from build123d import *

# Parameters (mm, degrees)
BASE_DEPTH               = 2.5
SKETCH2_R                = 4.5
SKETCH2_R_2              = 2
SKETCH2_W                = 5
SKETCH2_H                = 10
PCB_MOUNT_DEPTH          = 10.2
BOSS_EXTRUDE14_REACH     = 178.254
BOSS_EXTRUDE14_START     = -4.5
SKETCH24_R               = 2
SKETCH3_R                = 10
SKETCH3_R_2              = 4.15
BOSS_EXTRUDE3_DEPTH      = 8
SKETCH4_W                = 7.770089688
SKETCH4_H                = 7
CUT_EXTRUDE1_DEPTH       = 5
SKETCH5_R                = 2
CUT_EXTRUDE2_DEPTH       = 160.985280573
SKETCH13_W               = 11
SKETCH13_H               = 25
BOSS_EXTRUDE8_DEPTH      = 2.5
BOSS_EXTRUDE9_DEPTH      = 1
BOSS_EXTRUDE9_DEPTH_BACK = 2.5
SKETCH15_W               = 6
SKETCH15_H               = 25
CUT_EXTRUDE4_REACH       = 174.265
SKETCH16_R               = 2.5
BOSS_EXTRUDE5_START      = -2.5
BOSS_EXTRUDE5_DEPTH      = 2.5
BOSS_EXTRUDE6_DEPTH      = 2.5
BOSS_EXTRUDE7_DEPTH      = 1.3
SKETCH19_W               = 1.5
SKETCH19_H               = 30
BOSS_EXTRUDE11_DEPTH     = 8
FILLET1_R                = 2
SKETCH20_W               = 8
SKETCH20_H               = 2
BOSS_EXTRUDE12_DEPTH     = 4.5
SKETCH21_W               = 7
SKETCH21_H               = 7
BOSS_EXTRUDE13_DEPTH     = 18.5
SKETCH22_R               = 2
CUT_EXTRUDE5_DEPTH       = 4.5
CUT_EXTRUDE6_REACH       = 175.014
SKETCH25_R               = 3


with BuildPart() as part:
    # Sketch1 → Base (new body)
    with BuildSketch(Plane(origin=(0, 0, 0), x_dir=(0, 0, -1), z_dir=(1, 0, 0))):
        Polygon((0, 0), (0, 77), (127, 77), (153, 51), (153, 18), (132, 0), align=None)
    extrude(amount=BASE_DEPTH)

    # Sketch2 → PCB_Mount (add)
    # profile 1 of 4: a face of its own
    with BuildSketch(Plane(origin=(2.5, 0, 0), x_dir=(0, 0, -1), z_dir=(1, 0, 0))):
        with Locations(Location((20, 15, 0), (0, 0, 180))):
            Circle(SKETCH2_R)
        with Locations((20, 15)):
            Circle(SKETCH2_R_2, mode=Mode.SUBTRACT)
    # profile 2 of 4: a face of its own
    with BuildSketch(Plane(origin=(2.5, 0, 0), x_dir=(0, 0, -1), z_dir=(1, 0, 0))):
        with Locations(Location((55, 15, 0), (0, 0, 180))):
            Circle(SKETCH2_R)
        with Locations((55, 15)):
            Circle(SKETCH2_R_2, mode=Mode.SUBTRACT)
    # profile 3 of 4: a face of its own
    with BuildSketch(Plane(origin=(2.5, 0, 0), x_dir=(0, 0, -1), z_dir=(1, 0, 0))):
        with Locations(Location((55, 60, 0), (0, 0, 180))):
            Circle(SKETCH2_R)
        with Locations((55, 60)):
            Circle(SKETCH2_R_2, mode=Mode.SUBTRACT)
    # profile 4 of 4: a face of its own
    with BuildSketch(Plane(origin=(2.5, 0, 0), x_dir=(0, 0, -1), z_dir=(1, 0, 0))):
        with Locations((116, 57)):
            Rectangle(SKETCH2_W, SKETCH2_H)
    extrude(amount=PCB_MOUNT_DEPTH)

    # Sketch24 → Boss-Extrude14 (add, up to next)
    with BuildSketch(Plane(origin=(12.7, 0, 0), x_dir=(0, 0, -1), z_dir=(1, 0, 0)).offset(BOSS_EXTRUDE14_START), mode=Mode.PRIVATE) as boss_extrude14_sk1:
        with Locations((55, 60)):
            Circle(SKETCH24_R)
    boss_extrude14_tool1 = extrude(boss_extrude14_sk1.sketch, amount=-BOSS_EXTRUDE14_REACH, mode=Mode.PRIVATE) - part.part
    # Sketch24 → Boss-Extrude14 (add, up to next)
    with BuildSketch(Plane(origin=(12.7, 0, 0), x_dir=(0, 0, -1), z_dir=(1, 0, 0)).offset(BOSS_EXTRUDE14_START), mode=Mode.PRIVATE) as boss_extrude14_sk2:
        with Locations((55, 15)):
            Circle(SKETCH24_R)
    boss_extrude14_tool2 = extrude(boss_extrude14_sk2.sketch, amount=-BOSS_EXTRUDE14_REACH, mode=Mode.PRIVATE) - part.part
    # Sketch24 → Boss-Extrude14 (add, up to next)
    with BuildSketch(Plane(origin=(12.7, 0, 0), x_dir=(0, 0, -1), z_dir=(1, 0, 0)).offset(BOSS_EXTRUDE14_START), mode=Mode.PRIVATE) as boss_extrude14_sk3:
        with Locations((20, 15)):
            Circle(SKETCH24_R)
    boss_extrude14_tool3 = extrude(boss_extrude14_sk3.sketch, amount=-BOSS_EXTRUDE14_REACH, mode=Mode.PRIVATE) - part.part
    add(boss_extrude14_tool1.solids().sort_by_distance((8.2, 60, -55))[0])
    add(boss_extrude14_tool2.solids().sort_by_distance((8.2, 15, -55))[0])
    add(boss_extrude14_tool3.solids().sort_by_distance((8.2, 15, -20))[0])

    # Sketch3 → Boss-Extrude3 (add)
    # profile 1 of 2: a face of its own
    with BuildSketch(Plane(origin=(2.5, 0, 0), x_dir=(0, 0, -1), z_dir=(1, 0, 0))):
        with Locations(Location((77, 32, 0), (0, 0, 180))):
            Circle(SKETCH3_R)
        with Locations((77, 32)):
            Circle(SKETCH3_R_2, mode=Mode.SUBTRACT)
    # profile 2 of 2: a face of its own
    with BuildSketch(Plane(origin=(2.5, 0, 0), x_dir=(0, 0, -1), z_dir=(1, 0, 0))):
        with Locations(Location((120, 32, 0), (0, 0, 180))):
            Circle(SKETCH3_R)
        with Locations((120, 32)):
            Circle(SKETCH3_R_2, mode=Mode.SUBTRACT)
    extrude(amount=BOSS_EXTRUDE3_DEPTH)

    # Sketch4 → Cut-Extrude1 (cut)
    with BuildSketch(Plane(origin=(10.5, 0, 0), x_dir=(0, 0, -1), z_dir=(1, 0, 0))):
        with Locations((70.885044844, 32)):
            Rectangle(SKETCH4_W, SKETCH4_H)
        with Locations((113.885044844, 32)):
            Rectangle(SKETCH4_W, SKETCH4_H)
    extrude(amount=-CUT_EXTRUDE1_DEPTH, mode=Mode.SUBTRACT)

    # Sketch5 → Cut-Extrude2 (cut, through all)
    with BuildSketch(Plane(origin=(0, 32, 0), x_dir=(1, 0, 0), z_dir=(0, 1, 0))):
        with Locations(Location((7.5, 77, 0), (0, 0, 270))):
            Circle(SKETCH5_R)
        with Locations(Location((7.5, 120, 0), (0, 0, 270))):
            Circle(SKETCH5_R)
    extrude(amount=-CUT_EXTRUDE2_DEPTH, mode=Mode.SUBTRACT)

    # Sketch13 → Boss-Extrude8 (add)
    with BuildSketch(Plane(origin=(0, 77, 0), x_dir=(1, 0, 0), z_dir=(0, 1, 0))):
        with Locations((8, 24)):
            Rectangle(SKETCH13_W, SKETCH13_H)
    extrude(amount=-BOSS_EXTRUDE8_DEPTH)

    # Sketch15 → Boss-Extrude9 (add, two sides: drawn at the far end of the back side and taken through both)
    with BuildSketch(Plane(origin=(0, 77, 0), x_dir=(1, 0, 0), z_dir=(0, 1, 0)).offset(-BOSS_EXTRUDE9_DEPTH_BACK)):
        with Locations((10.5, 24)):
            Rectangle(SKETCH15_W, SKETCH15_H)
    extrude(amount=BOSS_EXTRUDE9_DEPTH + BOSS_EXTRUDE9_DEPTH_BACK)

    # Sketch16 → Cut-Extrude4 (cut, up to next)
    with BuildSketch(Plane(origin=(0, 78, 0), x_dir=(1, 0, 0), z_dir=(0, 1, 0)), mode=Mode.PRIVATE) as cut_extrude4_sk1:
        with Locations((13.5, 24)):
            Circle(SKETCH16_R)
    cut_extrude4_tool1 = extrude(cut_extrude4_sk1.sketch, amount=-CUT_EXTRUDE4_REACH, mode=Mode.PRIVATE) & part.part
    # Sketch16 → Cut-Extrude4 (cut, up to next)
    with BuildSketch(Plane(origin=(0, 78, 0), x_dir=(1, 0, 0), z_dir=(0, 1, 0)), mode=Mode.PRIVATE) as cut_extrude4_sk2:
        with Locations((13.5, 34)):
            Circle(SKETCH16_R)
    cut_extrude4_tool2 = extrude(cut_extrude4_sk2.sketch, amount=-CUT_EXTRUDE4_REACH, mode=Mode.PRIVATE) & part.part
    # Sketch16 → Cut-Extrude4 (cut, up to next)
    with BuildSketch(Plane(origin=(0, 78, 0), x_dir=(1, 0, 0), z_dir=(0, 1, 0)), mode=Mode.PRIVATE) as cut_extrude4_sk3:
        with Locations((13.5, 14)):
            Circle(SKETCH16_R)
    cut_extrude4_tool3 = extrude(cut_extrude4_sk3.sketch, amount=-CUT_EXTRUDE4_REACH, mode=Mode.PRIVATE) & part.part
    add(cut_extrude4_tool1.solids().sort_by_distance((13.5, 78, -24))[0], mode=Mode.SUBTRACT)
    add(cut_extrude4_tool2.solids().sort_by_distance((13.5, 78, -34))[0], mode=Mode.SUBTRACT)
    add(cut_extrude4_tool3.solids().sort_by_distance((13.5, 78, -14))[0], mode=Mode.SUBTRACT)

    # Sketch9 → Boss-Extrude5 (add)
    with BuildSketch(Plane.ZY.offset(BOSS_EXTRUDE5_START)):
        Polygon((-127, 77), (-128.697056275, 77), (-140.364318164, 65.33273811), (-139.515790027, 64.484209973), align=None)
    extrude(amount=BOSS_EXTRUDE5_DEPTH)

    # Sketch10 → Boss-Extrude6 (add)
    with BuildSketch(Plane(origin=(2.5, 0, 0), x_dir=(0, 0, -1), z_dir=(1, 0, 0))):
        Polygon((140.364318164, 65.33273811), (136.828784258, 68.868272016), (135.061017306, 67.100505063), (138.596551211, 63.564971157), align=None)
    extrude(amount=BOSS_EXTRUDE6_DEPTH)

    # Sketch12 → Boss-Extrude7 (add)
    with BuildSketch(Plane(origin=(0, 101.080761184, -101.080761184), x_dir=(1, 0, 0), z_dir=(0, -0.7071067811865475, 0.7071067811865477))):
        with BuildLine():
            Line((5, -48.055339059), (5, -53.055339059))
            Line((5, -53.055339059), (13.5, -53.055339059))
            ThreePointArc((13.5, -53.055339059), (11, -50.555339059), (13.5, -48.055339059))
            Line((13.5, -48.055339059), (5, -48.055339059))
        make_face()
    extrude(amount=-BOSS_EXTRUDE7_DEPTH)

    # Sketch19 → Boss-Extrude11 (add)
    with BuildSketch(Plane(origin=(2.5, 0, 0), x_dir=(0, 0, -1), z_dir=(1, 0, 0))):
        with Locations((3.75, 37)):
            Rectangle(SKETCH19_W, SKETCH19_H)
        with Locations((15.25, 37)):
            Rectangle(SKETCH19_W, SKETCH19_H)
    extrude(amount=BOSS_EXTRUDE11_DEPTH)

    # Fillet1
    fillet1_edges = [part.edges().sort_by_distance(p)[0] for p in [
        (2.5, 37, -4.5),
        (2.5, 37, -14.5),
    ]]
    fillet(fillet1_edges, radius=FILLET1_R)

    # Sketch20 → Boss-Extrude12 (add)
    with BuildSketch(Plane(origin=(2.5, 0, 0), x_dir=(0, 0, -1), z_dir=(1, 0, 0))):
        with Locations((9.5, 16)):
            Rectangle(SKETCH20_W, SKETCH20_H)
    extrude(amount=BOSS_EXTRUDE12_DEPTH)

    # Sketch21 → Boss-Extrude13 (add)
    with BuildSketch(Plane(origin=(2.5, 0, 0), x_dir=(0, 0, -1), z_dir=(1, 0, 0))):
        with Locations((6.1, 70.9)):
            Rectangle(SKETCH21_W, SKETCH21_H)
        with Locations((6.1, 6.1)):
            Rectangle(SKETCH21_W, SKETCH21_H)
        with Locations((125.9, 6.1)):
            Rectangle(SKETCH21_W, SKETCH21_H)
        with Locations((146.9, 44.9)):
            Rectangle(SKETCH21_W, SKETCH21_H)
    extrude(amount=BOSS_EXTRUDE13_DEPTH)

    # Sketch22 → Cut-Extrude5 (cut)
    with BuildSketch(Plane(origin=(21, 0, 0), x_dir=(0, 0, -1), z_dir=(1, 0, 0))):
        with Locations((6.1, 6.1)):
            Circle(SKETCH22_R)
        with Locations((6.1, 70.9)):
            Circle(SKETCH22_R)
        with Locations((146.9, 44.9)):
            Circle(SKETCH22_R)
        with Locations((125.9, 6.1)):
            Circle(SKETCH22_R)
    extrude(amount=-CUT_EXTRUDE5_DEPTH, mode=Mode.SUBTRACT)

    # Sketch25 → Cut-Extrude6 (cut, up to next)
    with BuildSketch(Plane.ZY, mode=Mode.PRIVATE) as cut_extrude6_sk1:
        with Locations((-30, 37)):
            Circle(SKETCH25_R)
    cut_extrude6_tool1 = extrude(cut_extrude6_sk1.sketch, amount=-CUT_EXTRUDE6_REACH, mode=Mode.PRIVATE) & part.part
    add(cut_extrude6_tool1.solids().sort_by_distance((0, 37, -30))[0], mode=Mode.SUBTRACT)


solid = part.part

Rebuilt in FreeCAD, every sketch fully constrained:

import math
import FreeCAD as App
import Part
import Sketcher
from FreeCAD import Vector
Q = App.Units.Quantity


def edges_at(feature, points):
    """Names of the edges that pass closest to the given points."""
    edges = feature.Shape.Edges
    near = lambda p: min(range(len(edges)), key=lambda i: edges[i].distToShape(Part.Vertex(*p))[0])
    return sorted({f"Edge{near(p) + 1}" for p in points})

doc = App.newDocument("Part")
params = doc.addObject("Spreadsheet::Sheet", "Params")
for row, (alias, value) in enumerate([
    ("sketch1_width", "77 mm"),
    ("sketch1_width2", "33 mm"),
    ("sketch1_height", "132 mm"),
    ("sketch1_height2", "127 mm"),
    ("pad1_length", "2.5 mm"),
    ("sketch2_diameter", "9 mm"),
    ("sketch2_diameter2", "4 mm"),
    ("sketch2_width", "10 mm"),
    ("sketch2_height", "5 mm"),
    ("pad2_length", "10.2 mm"),
    ("sketch3_diameter", "4 mm"),
    ("sketch4_diameter", "4 mm"),
    ("sketch5_diameter", "4 mm"),
    ("sketch6_diameter", "20 mm"),
    ("sketch6_diameter2", "8.3 mm"),
    ("pad6_length", "8 mm"),
    ("sketch7_width", "7 mm"),
    ("pocket1_length", "5 mm"),
    ("sketch8_diameter", "4 mm"),
    ("sketch9_width", "11 mm"),
    ("sketch9_height", "25 mm"),
    ("pad7_length", "2.5 mm"),
    ("sketch10_width", "6 mm"),
    ("sketch10_height", "25 mm"),
    ("pad8_length", "1 mm"),
    ("pad8_length2", "2.5 mm"),
    ("sketch11_diameter", "5 mm"),
    ("sketch12_diameter", "5 mm"),
    ("sketch13_diameter", "5 mm"),
    ("sketch14_length", "16.5 mm"),
    ("sketch14_length2", "1.2 mm"),
    ("pad9_length", "2.5 mm"),
    ("sketch15_length", "5 mm"),
    ("sketch15_length2", "2.5 mm"),
    ("pad10_length", "2.5 mm"),
    ("sketch16_radius", "2.5 mm"),
    ("sketch16_width", "8.5 mm"),
    ("pad11_length", "1.3 mm"),
    ("sketch17_width", "30 mm"),
    ("sketch17_height", "1.5 mm"),
    ("pad12_length", "8 mm"),
    ("fillet_radius", "2 mm"),
    ("sketch18_width", "2 mm"),
    ("sketch18_height", "8 mm"),
    ("pad13_length", "4.5 mm"),
    ("sketch19_width", "7 mm"),
    ("pad14_length", "18.5 mm"),
    ("sketch20_diameter", "4 mm"),
    ("pocket6_length", "4.5 mm"),
    ("sketch21_diameter", "6 mm"),
], start=1):
    params.set(f"A{row}", alias)
    params.set(f"B{row}", "=" + value)
    params.setAlias(f"B{row}", alias)

body = doc.addObject("PartDesign::Body", "Body")

# Sketch on YZ plane
sketch1 = body.newObject("Sketcher::SketchObject", "Sketch")
sketch1.AttachmentSupport = (doc.getObject("YZ_Plane"), [""])
sketch1.MapMode = "FlatFace"
sketch1.addGeometry(Part.LineSegment(Vector(77, 0, 0), Vector(0, 0, 0)), False)
sketch1.addGeometry(Part.LineSegment(Vector(0, 0, 0), Vector(0, -132, 0)), False)
sketch1.addGeometry(Part.LineSegment(Vector(0, -132, 0), Vector(18, -153, 0)), False)
sketch1.addGeometry(Part.LineSegment(Vector(18, -153, 0), Vector(51, -153, 0)), False)
sketch1.addGeometry(Part.LineSegment(Vector(51, -153, 0), Vector(77, -127, 0)), False)
sketch1.addGeometry(Part.LineSegment(Vector(77, -127, 0), Vector(77, 0, 0)), False)
sketch1.addConstraint(Sketcher.Constraint("Coincident", 0, 2, 1, 1))
sketch1.addConstraint(Sketcher.Constraint("Coincident", 1, 2, 2, 1))
sketch1.addConstraint(Sketcher.Constraint("Coincident", 2, 2, 3, 1))
sketch1.addConstraint(Sketcher.Constraint("Coincident", 3, 2, 4, 1))
sketch1.addConstraint(Sketcher.Constraint("Coincident", 4, 2, 5, 1))
sketch1.addConstraint(Sketcher.Constraint("Coincident", 5, 2, 0, 1))
sketch1.addConstraint(Sketcher.Constraint("Horizontal", 0))
sketch1.addConstraint(Sketcher.Constraint("Vertical", 1))
sketch1.addConstraint(Sketcher.Constraint("Horizontal", 3))
sketch1.addConstraint(Sketcher.Constraint("Vertical", 5))
sketch1.addConstraint(Sketcher.Constraint("Coincident", 0, 2, -1, 1))
sketch1.addConstraint(Sketcher.Constraint("DistanceX", 0, 2, 0, 1, 77.0))
sketch1.addConstraint(Sketcher.Constraint("DistanceX", 3, 1, 3, 2, 33.0))
sketch1.addConstraint(Sketcher.Constraint("DistanceY", 1, 2, 1, 1, 132.0))
sketch1.addConstraint(Sketcher.Constraint("DistanceY", 5, 1, 5, 2, 127.0))
sketch1.addConstraint(Sketcher.Constraint("Angle", 4, Q("45 deg")))
sketch1.addConstraint(Sketcher.Constraint("DistanceX", -1, 1, 2, 2, 18.0))
sketch1.setExpression("Constraints[11]", "Params.sketch1_width")
sketch1.setExpression("Constraints[12]", "Params.sketch1_width2")
sketch1.setExpression("Constraints[13]", "Params.sketch1_height")
sketch1.setExpression("Constraints[14]", "Params.sketch1_height2")
pad1 = body.newObject("PartDesign::Pad", "Pad")
pad1.Profile = sketch1
pad1.setExpression("Length", "Params.pad1_length")

# Sketch on YZ plane
sketch2 = body.newObject("Sketcher::SketchObject", "Sketch001")
sketch2.AttachmentSupport = (doc.getObject("YZ_Plane"), [""])
sketch2.MapMode = "FlatFace"
sketch2.AttachmentOffset = App.Placement(Vector(0, 0, 2.5), App.Rotation())
sketch2.addGeometry(Part.Circle(Vector(15, -20, 0), Vector(0, 0, 1), 4.5), False)
sketch2.addGeometry(Part.Circle(Vector(15, -20, 0), Vector(0, 0, 1), 2), False)
sketch2.addGeometry(Part.Circle(Vector(15, -55, 0), Vector(0, 0, 1), 4.5), False)
sketch2.addGeometry(Part.Circle(Vector(15, -55, 0), Vector(0, 0, 1), 2), False)
sketch2.addGeometry(Part.Circle(Vector(60, -55, 0), Vector(0, 0, 1), 4.5), False)
sketch2.addGeometry(Part.Circle(Vector(60, -55, 0), Vector(0, 0, 1), 2), False)
sketch2.addGeometry(Part.LineSegment(Vector(62, -113.5, 0), Vector(52, -113.5, 0)), False)
sketch2.addGeometry(Part.LineSegment(Vector(52, -113.5, 0), Vector(52, -118.5, 0)), False)
sketch2.addGeometry(Part.LineSegment(Vector(52, -118.5, 0), Vector(62, -118.5, 0)), False)
sketch2.addGeometry(Part.LineSegment(Vector(62, -118.5, 0), Vector(62, -113.5, 0)), False)
sketch2.addConstraint(Sketcher.Constraint("Coincident", 6, 2, 7, 1))
sketch2.addConstraint(Sketcher.Constraint("Coincident", 7, 2, 8, 1))
sketch2.addConstraint(Sketcher.Constraint("Coincident", 8, 2, 9, 1))
sketch2.addConstraint(Sketcher.Constraint("Coincident", 9, 2, 6, 1))
sketch2.addConstraint(Sketcher.Constraint("Horizontal", 6))
sketch2.addConstraint(Sketcher.Constraint("Vertical", 7))
sketch2.addConstraint(Sketcher.Constraint("Horizontal", 8))
sketch2.addConstraint(Sketcher.Constraint("Vertical", 9))
sketch2.addConstraint(Sketcher.Constraint("Coincident", 1, 3, 0, 3))
sketch2.addConstraint(Sketcher.Constraint("Coincident", 3, 3, 2, 3))
sketch2.addConstraint(Sketcher.Constraint("Coincident", 5, 3, 4, 3))
sketch2.addConstraint(Sketcher.Constraint("Equal", 0, 2))
sketch2.addConstraint(Sketcher.Constraint("Equal", 1, 3))
sketch2.addConstraint(Sketcher.Constraint("Equal", 2, 4))
sketch2.addConstraint(Sketcher.Constraint("Equal", 3, 5))
sketch2.addConstraint(Sketcher.Constraint("Horizontal", 3, 3, 4, 3))
sketch2.addConstraint(Sketcher.Constraint("Vertical", 1, 3, 2, 3))
sketch2.addConstraint(Sketcher.Constraint("Diameter", 0, 9.0))
sketch2.addConstraint(Sketcher.Constraint("Diameter", 1, 4.0))
sketch2.addConstraint(Sketcher.Constraint("DistanceX", 6, 2, 6, 1, 10.0))
sketch2.addConstraint(Sketcher.Constraint("DistanceY", 7, 2, 7, 1, 5.0))
sketch2.addConstraint(Sketcher.Constraint("DistanceX", -1, 1, 0, 3, 15.0))
sketch2.addConstraint(Sketcher.Constraint("DistanceY", 0, 3, -1, 1, 20.0))
sketch2.addConstraint(Sketcher.Constraint("DistanceY", 2, 3, -1, 1, 55.0))
sketch2.addConstraint(Sketcher.Constraint("DistanceX", -1, 1, 4, 3, 60.0))
sketch2.addConstraint(Sketcher.Constraint("DistanceX", -1, 1, 6, 2, 52.0))
sketch2.addConstraint(Sketcher.Constraint("DistanceY", 6, 2, -1, 1, 113.5))
sketch2.setExpression("Constraints[17]", "Params.sketch2_diameter")
sketch2.setExpression("Constraints[18]", "Params.sketch2_diameter2")
sketch2.setExpression("Constraints[19]", "Params.sketch2_width")
sketch2.setExpression("Constraints[20]", "Params.sketch2_height")
pad2 = body.newObject("PartDesign::Pad", "Pad001")
pad2.Profile = sketch2
pad2.setExpression("Length", "Params.pad2_length")

# Sketch on YZ plane
sketch3 = body.newObject("Sketcher::SketchObject", "Sketch002")
sketch3.AttachmentSupport = (doc.getObject("YZ_Plane"), [""])
sketch3.MapMode = "FlatFace"
sketch3.AttachmentOffset = App.Placement(Vector(0, 0, 8.2), App.Rotation())
sketch3.addGeometry(Part.Circle(Vector(60, -55, 0), Vector(0, 0, 1), 2), False)
sketch3.addConstraint(Sketcher.Constraint("Diameter", 0, 4.0))
sketch3.addConstraint(Sketcher.Constraint("DistanceX", -1, 1, 0, 3, 60.0))
sketch3.addConstraint(Sketcher.Constraint("DistanceY", 0, 3, -1, 1, 55.0))
sketch3.setExpression("Constraints[0]", "Params.sketch3_diameter")
pad3 = body.newObject("PartDesign::Pad", "Pad002")
pad3.Profile = sketch3
pad3.Type = "UpToFirst"
pad3.Reversed = True

# Sketch on YZ plane
sketch4 = body.newObject("Sketcher::SketchObject", "Sketch003")
sketch4.AttachmentSupport = (doc.getObject("YZ_Plane"), [""])
sketch4.MapMode = "FlatFace"
sketch4.AttachmentOffset = App.Placement(Vector(0, 0, 8.2), App.Rotation())
sketch4.addGeometry(Part.Circle(Vector(15, -55, 0), Vector(0, 0, 1), 2), False)
sketch4.addConstraint(Sketcher.Constraint("Diameter", 0, 4.0))
sketch4.addConstraint(Sketcher.Constraint("DistanceX", -1, 1, 0, 3, 15.0))
sketch4.addConstraint(Sketcher.Constraint("DistanceY", 0, 3, -1, 1, 55.0))
sketch4.setExpression("Constraints[0]", "Params.sketch4_diameter")
pad4 = body.newObject("PartDesign::Pad", "Pad003")
pad4.Profile = sketch4
pad4.Type = "UpToFirst"
pad4.Reversed = True

# Sketch on YZ plane
sketch5 = body.newObject("Sketcher::SketchObject", "Sketch004")
sketch5.AttachmentSupport = (doc.getObject("YZ_Plane"), [""])
sketch5.MapMode = "FlatFace"
sketch5.AttachmentOffset = App.Placement(Vector(0, 0, 8.2), App.Rotation())
sketch5.addGeometry(Part.Circle(Vector(15, -20, 0), Vector(0, 0, 1), 2), False)
sketch5.addConstraint(Sketcher.Constraint("Diameter", 0, 4.0))
sketch5.addConstraint(Sketcher.Constraint("DistanceX", -1, 1, 0, 3, 15.0))
sketch5.addConstraint(Sketcher.Constraint("DistanceY", 0, 3, -1, 1, 20.0))
sketch5.setExpression("Constraints[0]", "Params.sketch5_diameter")
pad5 = body.newObject("PartDesign::Pad", "Pad004")
pad5.Profile = sketch5
pad5.Type = "UpToFirst"
pad5.Reversed = True

# Sketch on YZ plane
sketch6 = body.newObject("Sketcher::SketchObject", "Sketch005")
sketch6.AttachmentSupport = (doc.getObject("YZ_Plane"), [""])
sketch6.MapMode = "FlatFace"
sketch6.AttachmentOffset = App.Placement(Vector(0, 0, 2.5), App.Rotation())
sketch6.addGeometry(Part.Circle(Vector(32, -77, 0), Vector(0, 0, 1), 10), False)
sketch6.addGeometry(Part.Circle(Vector(32, -77, 0), Vector(0, 0, 1), 4.2), False)
sketch6.addGeometry(Part.Circle(Vector(32, -120, 0), Vector(0, 0, 1), 10), False)
sketch6.addGeometry(Part.Circle(Vector(32, -120, 0), Vector(0, 0, 1), 4.2), False)
sketch6.addConstraint(Sketcher.Constraint("Coincident", 1, 3, 0, 3))
sketch6.addConstraint(Sketcher.Constraint("Coincident", 3, 3, 2, 3))
sketch6.addConstraint(Sketcher.Constraint("Equal", 0, 2))
sketch6.addConstraint(Sketcher.Constraint("Equal", 1, 3))
sketch6.addConstraint(Sketcher.Constraint("Vertical", 1, 3, 2, 3))
sketch6.addConstraint(Sketcher.Constraint("Diameter", 0, 20.0))
sketch6.addConstraint(Sketcher.Constraint("Diameter", 1, 8.3))
sketch6.addConstraint(Sketcher.Constraint("DistanceX", -1, 1, 0, 3, 32.0))
sketch6.addConstraint(Sketcher.Constraint("DistanceY", 0, 3, -1, 1, 77.0))
sketch6.addConstraint(Sketcher.Constraint("DistanceY", 2, 3, -1, 1, 120.0))
sketch6.setExpression("Constraints[5]", "Params.sketch6_diameter")
sketch6.setExpression("Constraints[6]", "Params.sketch6_diameter2")
pad6 = body.newObject("PartDesign::Pad", "Pad005")
pad6.Profile = sketch6
pad6.setExpression("Length", "Params.pad6_length")

# Sketch on YZ plane
sketch7 = body.newObject("Sketcher::SketchObject", "Sketch006")
sketch7.AttachmentSupport = (doc.getObject("YZ_Plane"), [""])
sketch7.MapMode = "FlatFace"
sketch7.AttachmentOffset = App.Placement(Vector(0, 0, 10.5), App.Rotation())
sketch7.addGeometry(Part.LineSegment(Vector(36, -67, 0), Vector(28, -67, 0)), False)
sketch7.addGeometry(Part.LineSegment(Vector(28, -67, 0), Vector(28, -75, 0)), False)
sketch7.addGeometry(Part.LineSegment(Vector(28, -75, 0), Vector(36, -75, 0)), False)
sketch7.addGeometry(Part.LineSegment(Vector(36, -75, 0), Vector(36, -67, 0)), False)
sketch7.addGeometry(Part.LineSegment(Vector(36, -110, 0), Vector(28, -110, 0)), False)
sketch7.addGeometry(Part.LineSegment(Vector(28, -110, 0), Vector(28, -118, 0)), False)
sketch7.addGeometry(Part.LineSegment(Vector(28, -118, 0), Vector(36, -118, 0)), False)
sketch7.addGeometry(Part.LineSegment(Vector(36, -118, 0), Vector(36, -110, 0)), False)
sketch7.addConstraint(Sketcher.Constraint("Coincident", 0, 2, 1, 1))
sketch7.addConstraint(Sketcher.Constraint("Coincident", 1, 2, 2, 1))
sketch7.addConstraint(Sketcher.Constraint("Coincident", 2, 2, 3, 1))
sketch7.addConstraint(Sketcher.Constraint("Coincident", 3, 2, 0, 1))
sketch7.addConstraint(Sketcher.Constraint("Coincident", 4, 2, 5, 1))
sketch7.addConstraint(Sketcher.Constraint("Coincident", 5, 2, 6, 1))
sketch7.addConstraint(Sketcher.Constraint("Coincident", 6, 2, 7, 1))
sketch7.addConstraint(Sketcher.Constraint("Coincident", 7, 2, 4, 1))
sketch7.addConstraint(Sketcher.Constraint("Horizontal", 0))
sketch7.addConstraint(Sketcher.Constraint("Vertical", 1))
sketch7.addConstraint(Sketcher.Constraint("Horizontal", 2))
sketch7.addConstraint(Sketcher.Constraint("Vertical", 3))
sketch7.addConstraint(Sketcher.Constraint("Horizontal", 4))
sketch7.addConstraint(Sketcher.Constraint("Vertical", 5))
sketch7.addConstraint(Sketcher.Constraint("Horizontal", 6))
sketch7.addConstraint(Sketcher.Constraint("Vertical", 7))
sketch7.addConstraint(Sketcher.Constraint("Vertical", 1, 2, 4, 2))
sketch7.addConstraint(Sketcher.Constraint("Vertical", 3, 2, 6, 2))
sketch7.addConstraint(Sketcher.Constraint("Equal", 3, 5))
sketch7.addConstraint(Sketcher.Constraint("DistanceX", 0, 2, 0, 1, 7.0))
sketch7.addConstraint(Sketcher.Constraint("DistanceY", 0, 2, -1, 1, 67.0))
sketch7.addConstraint(Sketcher.Constraint("DistanceY", 4, 2, -1, 1, 110.0))
sketch7.addConstraint(Sketcher.Constraint("DistanceX", -1, 1, 0, 2, 28.5))
sketch7.addConstraint(Sketcher.Constraint("DistanceY", 1, 2, 1, 1, 7.77009))
sketch7.setExpression("Constraints[19]", "Params.sketch7_width")
pocket1 = body.newObject("PartDesign::Pocket", "Pocket")
pocket1.Profile = sketch7
pocket1.setExpression("Length", "Params.pocket1_length")

# Sketch on XZ plane
sketch8 = body.newObject("Sketcher::SketchObject", "Sketch007")
sketch8.AttachmentSupport = (doc.getObject("XZ_Plane"), [""])
sketch8.MapMode = "FlatFace"
sketch8.AttachmentOffset = App.Placement(Vector(0, 0, -32), App.Rotation())
sketch8.addGeometry(Part.Circle(Vector(7.5, -77, 0), Vector(0, 0, 1), 2), False)
sketch8.addGeometry(Part.Circle(Vector(7.5, -120, 0), Vector(0, 0, 1), 2), False)
sketch8.addConstraint(Sketcher.Constraint("Equal", 0, 1))
sketch8.addConstraint(Sketcher.Constraint("Vertical", 0, 3, 1, 3))
sketch8.addConstraint(Sketcher.Constraint("Diameter", 0, 4.0))
sketch8.addConstraint(Sketcher.Constraint("DistanceY", 0, 3, -1, 1, 77.0))
sketch8.addConstraint(Sketcher.Constraint("DistanceY", 1, 3, -1, 1, 120.0))
sketch8.addConstraint(Sketcher.Constraint("DistanceX", -1, 1, 0, 3, 7.5))
sketch8.setExpression("Constraints[2]", "Params.sketch8_diameter")
pocket2 = body.newObject("PartDesign::Pocket", "Pocket001")
pocket2.Profile = sketch8
pocket2.Type = "ThroughAll"
pocket2.Reversed = True

# Sketch on XZ plane
sketch9 = body.newObject("Sketcher::SketchObject", "Sketch008")
sketch9.AttachmentSupport = (doc.getObject("XZ_Plane"), [""])
sketch9.MapMode = "FlatFace"
sketch9.AttachmentOffset = App.Placement(Vector(0, 0, -77), App.Rotation())
sketch9.addGeometry(Part.LineSegment(Vector(2, -36, 0), Vector(2, -12, 0)), False)
sketch9.addGeometry(Part.LineSegment(Vector(2, -12, 0), Vector(14, -12, 0)), False)
sketch9.addGeometry(Part.LineSegment(Vector(14, -12, 0), Vector(14, -36, 0)), False)
sketch9.addGeometry(Part.LineSegment(Vector(14, -36, 0), Vector(2, -36, 0)), False)
sketch9.addConstraint(Sketcher.Constraint("Coincident", 0, 2, 1, 1))
sketch9.addConstraint(Sketcher.Constraint("Coincident", 1, 2, 2, 1))
sketch9.addConstraint(Sketcher.Constraint("Coincident", 2, 2, 3, 1))
sketch9.addConstraint(Sketcher.Constraint("Coincident", 3, 2, 0, 1))
sketch9.addConstraint(Sketcher.Constraint("Vertical", 0))
sketch9.addConstraint(Sketcher.Constraint("Horizontal", 1))
sketch9.addConstraint(Sketcher.Constraint("Vertical", 2))
sketch9.addConstraint(Sketcher.Constraint("Horizontal", 3))
sketch9.addConstraint(Sketcher.Constraint("DistanceX", 1, 1, 1, 2, 11.0))
sketch9.addConstraint(Sketcher.Constraint("DistanceY", 0, 1, 0, 2, 25.0))
sketch9.addConstraint(Sketcher.Constraint("DistanceX", -1, 1, 0, 2, 2.5))
sketch9.addConstraint(Sketcher.Constraint("DistanceY", 0, 2, -1, 1, 11.5))
sketch9.setExpression("Constraints[8]", "Params.sketch9_width")
sketch9.setExpression("Constraints[9]", "Params.sketch9_height")
pad7 = body.newObject("PartDesign::Pad", "Pad006")
pad7.Profile = sketch9
pad7.setExpression("Length", "Params.pad7_length")

# Sketch on XZ plane
sketch10 = body.newObject("Sketcher::SketchObject", "Sketch009")
sketch10.AttachmentSupport = (doc.getObject("XZ_Plane"), [""])
sketch10.MapMode = "FlatFace"
sketch10.AttachmentOffset = App.Placement(Vector(0, 0, -77), App.Rotation())
sketch10.addGeometry(Part.LineSegment(Vector(8, -36, 0), Vector(8, -12, 0)), False)
sketch10.addGeometry(Part.LineSegment(Vector(8, -12, 0), Vector(14, -12, 0)), False)
sketch10.addGeometry(Part.LineSegment(Vector(14, -12, 0), Vector(14, -36, 0)), False)
sketch10.addGeometry(Part.LineSegment(Vector(14, -36, 0), Vector(8, -36, 0)), False)
sketch10.addConstraint(Sketcher.Constraint("Coincident", 0, 2, 1, 1))
sketch10.addConstraint(Sketcher.Constraint("Coincident", 1, 2, 2, 1))
sketch10.addConstraint(Sketcher.Constraint("Coincident", 2, 2, 3, 1))
sketch10.addConstraint(Sketcher.Constraint("Coincident", 3, 2, 0, 1))
sketch10.addConstraint(Sketcher.Constraint("Vertical", 0))
sketch10.addConstraint(Sketcher.Constraint("Horizontal", 1))
sketch10.addConstraint(Sketcher.Constraint("Vertical", 2))
sketch10.addConstraint(Sketcher.Constraint("Horizontal", 3))
sketch10.addConstraint(Sketcher.Constraint("DistanceX", 1, 1, 1, 2, 6.0))
sketch10.addConstraint(Sketcher.Constraint("DistanceY", 0, 1, 0, 2, 25.0))
sketch10.addConstraint(Sketcher.Constraint("DistanceX", -1, 1, 0, 2, 7.5))
sketch10.addConstraint(Sketcher.Constraint("DistanceY", 0, 2, -1, 1, 11.5))
sketch10.setExpression("Constraints[8]", "Params.sketch10_width")
sketch10.setExpression("Constraints[9]", "Params.sketch10_height")
pad8 = body.newObject("PartDesign::Pad", "Pad007")
pad8.Profile = sketch10
pad8.Type = "TwoLengths"
pad8.setExpression("Length", "Params.pad8_length")
pad8.setExpression("Length2", "Params.pad8_length2")
pad8.Reversed = True

# Sketch on XZ plane
sketch11 = body.newObject("Sketcher::SketchObject", "Sketch010")
sketch11.AttachmentSupport = (doc.getObject("XZ_Plane"), [""])
sketch11.MapMode = "FlatFace"
sketch11.AttachmentOffset = App.Placement(Vector(0, 0, -78), App.Rotation())
sketch11.addGeometry(Part.Circle(Vector(13.5, -24, 0), Vector(0, 0, 1), 2.5), False)
sketch11.addConstraint(Sketcher.Constraint("Diameter", 0, 5.0))
sketch11.addConstraint(Sketcher.Constraint("DistanceY", 0, 3, -1, 1, 24.0))
sketch11.addConstraint(Sketcher.Constraint("DistanceX", -1, 1, 0, 3, 13.5))
sketch11.setExpression("Constraints[0]", "Params.sketch11_diameter")
pocket3 = body.newObject("PartDesign::Pocket", "Pocket002")
pocket3.Profile = sketch11
pocket3.Type = "UpToFirst"
pocket3.Reversed = True

# Sketch on XZ plane
sketch12 = body.newObject("Sketcher::SketchObject", "Sketch011")
sketch12.AttachmentSupport = (doc.getObject("XZ_Plane"), [""])
sketch12.MapMode = "FlatFace"
sketch12.AttachmentOffset = App.Placement(Vector(0, 0, -78), App.Rotation())
sketch12.addGeometry(Part.Circle(Vector(13.5, -34, 0), Vector(0, 0, 1), 2.5), False)
sketch12.addConstraint(Sketcher.Constraint("Diameter", 0, 5.0))
sketch12.addConstraint(Sketcher.Constraint("DistanceY", 0, 3, -1, 1, 34.0))
sketch12.addConstraint(Sketcher.Constraint("DistanceX", -1, 1, 0, 3, 13.5))
sketch12.setExpression("Constraints[0]", "Params.sketch12_diameter")
pocket4 = body.newObject("PartDesign::Pocket", "Pocket003")
pocket4.Profile = sketch12
pocket4.Type = "UpToFirst"
pocket4.Reversed = True

# Sketch on XZ plane
sketch13 = body.newObject("Sketcher::SketchObject", "Sketch012")
sketch13.AttachmentSupport = (doc.getObject("XZ_Plane"), [""])
sketch13.MapMode = "FlatFace"
sketch13.AttachmentOffset = App.Placement(Vector(0, 0, -78), App.Rotation())
sketch13.addGeometry(Part.Circle(Vector(13.5, -14, 0), Vector(0, 0, 1), 2.5), False)
sketch13.addConstraint(Sketcher.Constraint("Diameter", 0, 5.0))
sketch13.addConstraint(Sketcher.Constraint("DistanceY", 0, 3, -1, 1, 14.0))
sketch13.addConstraint(Sketcher.Constraint("DistanceX", -1, 1, 0, 3, 13.5))
sketch13.setExpression("Constraints[0]", "Params.sketch13_diameter")
pocket5 = body.newObject("PartDesign::Pocket", "Pocket004")
pocket5.Profile = sketch13
pocket5.Type = "UpToFirst"
pocket5.Reversed = True

# Sketch on YZ plane
sketch14 = body.newObject("Sketcher::SketchObject", "Sketch013")
sketch14.AttachmentSupport = (doc.getObject("YZ_Plane"), [""])
sketch14.MapMode = "FlatFace"
sketch14.AttachmentOffset = App.Placement(Vector(0, 0, 2.5), App.Rotation())
sketch14.addGeometry(Part.LineSegment(Vector(77, -127, 0), Vector(77, -128.7, 0)), False)
sketch14.addGeometry(Part.LineSegment(Vector(77, -128.7, 0), Vector(65.3, -140.4, 0)), False)
sketch14.addGeometry(Part.LineSegment(Vector(65.3, -140.4, 0), Vector(64.5, -139.5, 0)), False)
sketch14.addGeometry(Part.LineSegment(Vector(64.5, -139.5, 0), Vector(77, -127, 0)), False)
sketch14.addConstraint(Sketcher.Constraint("Coincident", 0, 2, 1, 1))
sketch14.addConstraint(Sketcher.Constraint("Coincident", 1, 2, 2, 1))
sketch14.addConstraint(Sketcher.Constraint("Coincident", 2, 2, 3, 1))
sketch14.addConstraint(Sketcher.Constraint("Coincident", 3, 2, 0, 1))
sketch14.addConstraint(Sketcher.Constraint("Vertical", 0))
sketch14.addConstraint(Sketcher.Constraint("Perpendicular", 1, 2))
sketch14.addConstraint(Sketcher.Constraint("Perpendicular", 2, 3))
sketch14.addConstraint(Sketcher.Constraint("Angle", 1, Q("-135 deg")))
sketch14.addConstraint(Sketcher.Constraint("DistanceX", -1, 1, 0, 2, 77.0))
sketch14.addConstraint(Sketcher.Constraint("DistanceY", 3, 2, -1, 1, 127.0))
sketch14.addConstraint(Sketcher.Constraint("Distance", 1, 16.5))
sketch14.addConstraint(Sketcher.Constraint("Distance", 2, 1.2))
sketch14.setExpression("Constraints[10]", "Params.sketch14_length")
sketch14.setExpression("Constraints[11]", "Params.sketch14_length2")
pad9 = body.newObject("PartDesign::Pad", "Pad008")
pad9.Profile = sketch14
pad9.setExpression("Length", "Params.pad9_length")
pad9.Reversed = True

# Sketch on YZ plane
sketch15 = body.newObject("Sketcher::SketchObject", "Sketch014")
sketch15.AttachmentSupport = (doc.getObject("YZ_Plane"), [""])
sketch15.MapMode = "FlatFace"
sketch15.AttachmentOffset = App.Placement(Vector(0, 0, 2.5), App.Rotation())
sketch15.addGeometry(Part.LineSegment(Vector(65.3, -140.4, 0), Vector(68.9, -136.8, 0)), False)
sketch15.addGeometry(Part.LineSegment(Vector(68.9, -136.8, 0), Vector(67.1, -135.1, 0)), False)
sketch15.addGeometry(Part.LineSegment(Vector(67.1, -135.1, 0), Vector(63.6, -138.6, 0)), False)
sketch15.addGeometry(Part.LineSegment(Vector(63.6, -138.6, 0), Vector(65.3, -140.4, 0)), False)
sketch15.addConstraint(Sketcher.Constraint("Coincident", 0, 2, 1, 1))
sketch15.addConstraint(Sketcher.Constraint("Coincident", 1, 2, 2, 1))
sketch15.addConstraint(Sketcher.Constraint("Coincident", 2, 2, 3, 1))
sketch15.addConstraint(Sketcher.Constraint("Coincident", 3, 2, 0, 1))
sketch15.addConstraint(Sketcher.Constraint("Perpendicular", 0, 1))
sketch15.addConstraint(Sketcher.Constraint("Perpendicular", 1, 2))
sketch15.addConstraint(Sketcher.Constraint("Perpendicular", 2, 3))
sketch15.addConstraint(Sketcher.Constraint("Angle", 0, Q("45 deg")))
sketch15.addConstraint(Sketcher.Constraint("Distance", 0, 5.0))
sketch15.addConstraint(Sketcher.Constraint("Distance", 1, 2.5))
sketch15.addConstraint(Sketcher.Constraint("DistanceX", -1, 1, 2, 2, 63.564971))
sketch15.addConstraint(Sketcher.Constraint("DistanceY", 2, 2, -1, 1, 138.596551))
sketch15.setExpression("Constraints[8]", "Params.sketch15_length")
sketch15.setExpression("Constraints[9]", "Params.sketch15_length2")
pad10 = body.newObject("PartDesign::Pad", "Pad009")
pad10.Profile = sketch15
pad10.setExpression("Length", "Params.pad10_length")

# Sketch on an angled plane
sketch16 = body.newObject("Sketcher::SketchObject", "Sketch015")
sketch16.Placement = App.Placement(Vector(0, 101.080761, -101.080761), App.Rotation(Vector(1, 0, 0), Vector(0, 0.707106781, 0.707106781), Vector(0, -0.707106781, 0.707106781), "ZXY"))
sketch16.addGeometry(Part.LineSegment(Vector(5, -48.1, 0), Vector(5, -53.1, 0)), False)
sketch16.addGeometry(Part.LineSegment(Vector(5, -53.1, 0), Vector(13.5, -53.1, 0)), False)
sketch16.addGeometry(Part.ArcOfCircle(Part.Circle(Vector(13.5, -50.6, 0), Vector(0, 0, 1), 2.5), math.radians(90), math.radians(270)), False)
sketch16.addGeometry(Part.LineSegment(Vector(13.5, -48.1, 0), Vector(5, -48.1, 0)), False)
sketch16.addConstraint(Sketcher.Constraint("Coincident", 0, 2, 1, 1))
sketch16.addConstraint(Sketcher.Constraint("Tangent", 1, 2, 2, 2))
sketch16.addConstraint(Sketcher.Constraint("Tangent", 2, 1, 3, 1))
sketch16.addConstraint(Sketcher.Constraint("Coincident", 3, 2, 0, 1))
sketch16.addConstraint(Sketcher.Constraint("Vertical", 0))
sketch16.addConstraint(Sketcher.Constraint("Horizontal", 1))
sketch16.addConstraint(Sketcher.Constraint("Horizontal", 3))
sketch16.addConstraint(Sketcher.Constraint("Radius", 2, 2.5))
sketch16.addConstraint(Sketcher.Constraint("DistanceX", 1, 1, 1, 2, 8.5))
sketch16.addConstraint(Sketcher.Constraint("DistanceX", -1, 1, 0, 2, 5.0))
sketch16.addConstraint(Sketcher.Constraint("DistanceY", 2, 3, -1, 1, 50.555339))
sketch16.setExpression("Constraints[7]", "Params.sketch16_radius")
sketch16.setExpression("Constraints[8]", "Params.sketch16_width")
pad11 = body.newObject("PartDesign::Pad", "Pad010")
pad11.Profile = sketch16
pad11.setExpression("Length", "Params.pad11_length")
pad11.Reversed = True

# Sketch on YZ plane
sketch17 = body.newObject("Sketcher::SketchObject", "Sketch016")
sketch17.AttachmentSupport = (doc.getObject("YZ_Plane"), [""])
sketch17.MapMode = "FlatFace"
sketch17.AttachmentOffset = App.Placement(Vector(0, 0, 2.5), App.Rotation())
sketch17.addGeometry(Part.LineSegment(Vector(52, -3, 0), Vector(22, -3, 0)), False)
sketch17.addGeometry(Part.LineSegment(Vector(22, -3, 0), Vector(22, -4.5, 0)), False)
sketch17.addGeometry(Part.LineSegment(Vector(22, -4.5, 0), Vector(52, -4.5, 0)), False)
sketch17.addGeometry(Part.LineSegment(Vector(52, -4.5, 0), Vector(52, -3, 0)), False)
sketch17.addGeometry(Part.LineSegment(Vector(52, -14.5, 0), Vector(22, -14.5, 0)), False)
sketch17.addGeometry(Part.LineSegment(Vector(22, -14.5, 0), Vector(22, -16, 0)), False)
sketch17.addGeometry(Part.LineSegment(Vector(22, -16, 0), Vector(52, -16, 0)), False)
sketch17.addGeometry(Part.LineSegment(Vector(52, -16, 0), Vector(52, -14.5, 0)), False)
sketch17.addConstraint(Sketcher.Constraint("Coincident", 0, 2, 1, 1))
sketch17.addConstraint(Sketcher.Constraint("Coincident", 1, 2, 2, 1))
sketch17.addConstraint(Sketcher.Constraint("Coincident", 2, 2, 3, 1))
sketch17.addConstraint(Sketcher.Constraint("Coincident", 3, 2, 0, 1))
sketch17.addConstraint(Sketcher.Constraint("Coincident", 4, 2, 5, 1))
sketch17.addConstraint(Sketcher.Constraint("Coincident", 5, 2, 6, 1))
sketch17.addConstraint(Sketcher.Constraint("Coincident", 6, 2, 7, 1))
sketch17.addConstraint(Sketcher.Constraint("Coincident", 7, 2, 4, 1))
sketch17.addConstraint(Sketcher.Constraint("Horizontal", 0))
sketch17.addConstraint(Sketcher.Constraint("Vertical", 1))
sketch17.addConstraint(Sketcher.Constraint("Horizontal", 2))
sketch17.addConstraint(Sketcher.Constraint("Vertical", 3))
sketch17.addConstraint(Sketcher.Constraint("Horizontal", 4))
sketch17.addConstraint(Sketcher.Constraint("Vertical", 5))
sketch17.addConstraint(Sketcher.Constraint("Horizontal", 6))
sketch17.addConstraint(Sketcher.Constraint("Vertical", 7))
sketch17.addConstraint(Sketcher.Constraint("Vertical", 1, 2, 4, 2))
sketch17.addConstraint(Sketcher.Constraint("Vertical", 3, 2, 6, 2))
sketch17.addConstraint(Sketcher.Constraint("Equal", 3, 5))
sketch17.addConstraint(Sketcher.Constraint("DistanceX", 0, 2, 0, 1, 30.0))
sketch17.addConstraint(Sketcher.Constraint("DistanceY", 1, 2, 1, 1, 1.5))
sketch17.addConstraint(Sketcher.Constraint("DistanceX", -1, 1, 0, 2, 22.0))
sketch17.addConstraint(Sketcher.Constraint("DistanceY", 0, 2, -1, 1, 3.0))
sketch17.addConstraint(Sketcher.Constraint("DistanceY", 5, 2, -1, 1, 16.0))
sketch17.setExpression("Constraints[19]", "Params.sketch17_width")
sketch17.setExpression("Constraints[20]", "Params.sketch17_height")
pad12 = body.newObject("PartDesign::Pad", "Pad011")
pad12.Profile = sketch17
pad12.setExpression("Length", "Params.pad12_length")
doc.recompute()

fillet = body.newObject("PartDesign::Fillet", "Fillet")
fillet.Base = (pad12, edges_at(pad12, [(2.5, 37, -4.5), (2.5, 37, -14.5)]))
fillet.setExpression("Radius", "Params.fillet_radius")

# Sketch on YZ plane
sketch18 = body.newObject("Sketcher::SketchObject", "Sketch017")
sketch18.AttachmentSupport = (doc.getObject("YZ_Plane"), [""])
sketch18.MapMode = "FlatFace"
sketch18.AttachmentOffset = App.Placement(Vector(0, 0, 2.5), App.Rotation())
sketch18.addGeometry(Part.LineSegment(Vector(17, -5.5, 0), Vector(15, -5.5, 0)), False)
sketch18.addGeometry(Part.LineSegment(Vector(15, -5.5, 0), Vector(15, -13.5, 0)), False)
sketch18.addGeometry(Part.LineSegment(Vector(15, -13.5, 0), Vector(17, -13.5, 0)), False)
sketch18.addGeometry(Part.LineSegment(Vector(17, -13.5, 0), Vector(17, -5.5, 0)), False)
sketch18.addConstraint(Sketcher.Constraint("Coincident", 0, 2, 1, 1))
sketch18.addConstraint(Sketcher.Constraint("Coincident", 1, 2, 2, 1))
sketch18.addConstraint(Sketcher.Constraint("Coincident", 2, 2, 3, 1))
sketch18.addConstraint(Sketcher.Constraint("Coincident", 3, 2, 0, 1))
sketch18.addConstraint(Sketcher.Constraint("Horizontal", 0))
sketch18.addConstraint(Sketcher.Constraint("Vertical", 1))
sketch18.addConstraint(Sketcher.Constraint("Horizontal", 2))
sketch18.addConstraint(Sketcher.Constraint("Vertical", 3))
sketch18.addConstraint(Sketcher.Constraint("DistanceX", 0, 2, 0, 1, 2.0))
sketch18.addConstraint(Sketcher.Constraint("DistanceY", 1, 2, 1, 1, 8.0))
sketch18.addConstraint(Sketcher.Constraint("DistanceX", -1, 1, 0, 2, 15.0))
sketch18.addConstraint(Sketcher.Constraint("DistanceY", 0, 2, -1, 1, 5.5))
sketch18.setExpression("Constraints[8]", "Params.sketch18_width")
sketch18.setExpression("Constraints[9]", "Params.sketch18_height")
pad13 = body.newObject("PartDesign::Pad", "Pad012")
pad13.Profile = sketch18
pad13.setExpression("Length", "Params.pad13_length")

# Sketch on YZ plane
sketch19 = body.newObject("Sketcher::SketchObject", "Sketch018")
sketch19.AttachmentSupport = (doc.getObject("YZ_Plane"), [""])
sketch19.MapMode = "FlatFace"
sketch19.AttachmentOffset = App.Placement(Vector(0, 0, 2.5), App.Rotation())
sketch19.addGeometry(Part.LineSegment(Vector(74, -3, 0), Vector(67, -3, 0)), False)
sketch19.addGeometry(Part.LineSegment(Vector(67, -3, 0), Vector(67, -10, 0)), False)
sketch19.addGeometry(Part.LineSegment(Vector(67, -10, 0), Vector(74, -10, 0)), False)
sketch19.addGeometry(Part.LineSegment(Vector(74, -10, 0), Vector(74, -3, 0)), False)
sketch19.addGeometry(Part.LineSegment(Vector(10, -3, 0), Vector(3, -3, 0)), False)
sketch19.addGeometry(Part.LineSegment(Vector(3, -3, 0), Vector(3, -10, 0)), False)
sketch19.addGeometry(Part.LineSegment(Vector(3, -10, 0), Vector(10, -10, 0)), False)
sketch19.addGeometry(Part.LineSegment(Vector(10, -10, 0), Vector(10, -3, 0)), False)
sketch19.addGeometry(Part.LineSegment(Vector(10, -122, 0), Vector(3, -122, 0)), False)
sketch19.addGeometry(Part.LineSegment(Vector(3, -122, 0), Vector(3, -129, 0)), False)
sketch19.addGeometry(Part.LineSegment(Vector(3, -129, 0), Vector(10, -129, 0)), False)
sketch19.addGeometry(Part.LineSegment(Vector(10, -129, 0), Vector(10, -122, 0)), False)
sketch19.addGeometry(Part.LineSegment(Vector(48, -143, 0), Vector(41, -143, 0)), False)
sketch19.addGeometry(Part.LineSegment(Vector(41, -143, 0), Vector(41, -150, 0)), False)
sketch19.addGeometry(Part.LineSegment(Vector(41, -150, 0), Vector(48, -150, 0)), False)
sketch19.addGeometry(Part.LineSegment(Vector(48, -150, 0), Vector(48, -143, 0)), False)
sketch19.addConstraint(Sketcher.Constraint("Coincident", 0, 2, 1, 1))
sketch19.addConstraint(Sketcher.Constraint("Coincident", 1, 2, 2, 1))
sketch19.addConstraint(Sketcher.Constraint("Coincident", 2, 2, 3, 1))
sketch19.addConstraint(Sketcher.Constraint("Coincident", 3, 2, 0, 1))
sketch19.addConstraint(Sketcher.Constraint("Coincident", 4, 2, 5, 1))
sketch19.addConstraint(Sketcher.Constraint("Coincident", 5, 2, 6, 1))
sketch19.addConstraint(Sketcher.Constraint("Coincident", 6, 2, 7, 1))
sketch19.addConstraint(Sketcher.Constraint("Coincident", 7, 2, 4, 1))
sketch19.addConstraint(Sketcher.Constraint("Coincident", 8, 2, 9, 1))
sketch19.addConstraint(Sketcher.Constraint("Coincident", 9, 2, 10, 1))
sketch19.addConstraint(Sketcher.Constraint("Coincident", 10, 2, 11, 1))
sketch19.addConstraint(Sketcher.Constraint("Coincident", 11, 2, 8, 1))
sketch19.addConstraint(Sketcher.Constraint("Coincident", 12, 2, 13, 1))
sketch19.addConstraint(Sketcher.Constraint("Coincident", 13, 2, 14, 1))
sketch19.addConstraint(Sketcher.Constraint("Coincident", 14, 2, 15, 1))
sketch19.addConstraint(Sketcher.Constraint("Coincident", 15, 2, 12, 1))
sketch19.addConstraint(Sketcher.Constraint("Horizontal", 0))
sketch19.addConstraint(Sketcher.Constraint("Vertical", 1))
sketch19.addConstraint(Sketcher.Constraint("Horizontal", 2))
sketch19.addConstraint(Sketcher.Constraint("Vertical", 3))
sketch19.addConstraint(Sketcher.Constraint("Horizontal", 4))
sketch19.addConstraint(Sketcher.Constraint("Vertical", 5))
sketch19.addConstraint(Sketcher.Constraint("Horizontal", 6))
sketch19.addConstraint(Sketcher.Constraint("Vertical", 7))
sketch19.addConstraint(Sketcher.Constraint("Horizontal", 8))
sketch19.addConstraint(Sketcher.Constraint("Vertical", 9))
sketch19.addConstraint(Sketcher.Constraint("Horizontal", 10))
sketch19.addConstraint(Sketcher.Constraint("Vertical", 11))
sketch19.addConstraint(Sketcher.Constraint("Horizontal", 12))
sketch19.addConstraint(Sketcher.Constraint("Vertical", 13))
sketch19.addConstraint(Sketcher.Constraint("Horizontal", 14))
sketch19.addConstraint(Sketcher.Constraint("Vertical", 15))
sketch19.addConstraint(Sketcher.Constraint("Horizontal", 3, 2, 4, 2))
sketch19.addConstraint(Sketcher.Constraint("Horizontal", 2, 2, 5, 2))
sketch19.addConstraint(Sketcher.Constraint("Vertical", 5, 2, 8, 2))
sketch19.addConstraint(Sketcher.Constraint("Vertical", 7, 2, 10, 2))
sketch19.addConstraint(Sketcher.Constraint("Equal", 2, 4))
sketch19.addConstraint(Sketcher.Constraint("Equal", 10, 12))
sketch19.addConstraint(Sketcher.Constraint("Equal", 14, 1))
sketch19.addConstraint(Sketcher.Constraint("Equal", 7, 9))
sketch19.addConstraint(Sketcher.Constraint("Equal", 11, 13))
sketch19.addConstraint(Sketcher.Constraint("DistanceX", 0, 2, 0, 1, 7.0))
sketch19.addConstraint(Sketcher.Constraint("DistanceY", 12, 2, 10, 2, 14.0))
sketch19.addConstraint(Sketcher.Constraint("DistanceX", 12, 2, 1, 2, 26.0))
sketch19.addConstraint(Sketcher.Constraint("DistanceX", -1, 1, 0, 2, 67.4))
sketch19.addConstraint(Sketcher.Constraint("DistanceY", 0, 2, -1, 1, 2.6))
sketch19.addConstraint(Sketcher.Constraint("DistanceX", -1, 1, 4, 2, 2.6))
sketch19.addConstraint(Sketcher.Constraint("DistanceY", 8, 2, -1, 1, 122.4))
sketch19.setExpression("Constraints[41]", "Params.sketch19_width")
pad14 = body.newObject("PartDesign::Pad", "Pad013")
pad14.Profile = sketch19
pad14.setExpression("Length", "Params.pad14_length")

# Sketch on YZ plane
sketch20 = body.newObject("Sketcher::SketchObject", "Sketch019")
sketch20.AttachmentSupport = (doc.getObject("YZ_Plane"), [""])
sketch20.MapMode = "FlatFace"
sketch20.AttachmentOffset = App.Placement(Vector(0, 0, 21), App.Rotation())
sketch20.addGeometry(Part.Circle(Vector(6.1, -6.1, 0), Vector(0, 0, 1), 2), False)
sketch20.addGeometry(Part.Circle(Vector(70.9, -6.1, 0), Vector(0, 0, 1), 2), False)
sketch20.addGeometry(Part.Circle(Vector(44.9, -146.9, 0), Vector(0, 0, 1), 2), False)
sketch20.addGeometry(Part.Circle(Vector(6.1, -125.9, 0), Vector(0, 0, 1), 2), False)
sketch20.addConstraint(Sketcher.Constraint("Equal", 0, 1))
sketch20.addConstraint(Sketcher.Constraint("Equal", 1, 2))
sketch20.addConstraint(Sketcher.Constraint("Equal", 2, 3))
sketch20.addConstraint(Sketcher.Constraint("Horizontal", 0, 3, 1, 3))
sketch20.addConstraint(Sketcher.Constraint("Vertical", 0, 3, 3, 3))
sketch20.addConstraint(Sketcher.Constraint("Diameter", 0, 4.0))
sketch20.addConstraint(Sketcher.Constraint("DistanceX", 2, 3, 1, 3, 26.0))
sketch20.addConstraint(Sketcher.Constraint("DistanceY", 2, 3, 3, 3, 21.0))
sketch20.addConstraint(Sketcher.Constraint("DistanceX", -1, 1, 0, 3, 6.1))
sketch20.addConstraint(Sketcher.Constraint("DistanceY", 0, 3, -1, 1, 6.1))
sketch20.addConstraint(Sketcher.Constraint("DistanceX", -1, 1, 1, 3, 70.9))
sketch20.addConstraint(Sketcher.Constraint("DistanceY", 2, 3, -1, 1, 146.9))
sketch20.setExpression("Constraints[5]", "Params.sketch20_diameter")
pocket6 = body.newObject("PartDesign::Pocket", "Pocket005")
pocket6.Profile = sketch20
pocket6.setExpression("Length", "Params.pocket6_length")

# Sketch on YZ plane
sketch21 = body.newObject("Sketcher::SketchObject", "Sketch020")
sketch21.AttachmentSupport = (doc.getObject("YZ_Plane"), [""])
sketch21.MapMode = "FlatFace"
sketch21.addGeometry(Part.Circle(Vector(37, -30, 0), Vector(0, 0, 1), 3), False)
sketch21.addConstraint(Sketcher.Constraint("Diameter", 0, 6.0))
sketch21.addConstraint(Sketcher.Constraint("DistanceX", -1, 1, 0, 3, 37.0))
sketch21.addConstraint(Sketcher.Constraint("DistanceY", 0, 3, -1, 1, 30.0))
sketch21.setExpression("Constraints[0]", "Params.sketch21_diameter")
pocket7 = body.newObject("PartDesign::Pocket", "Pocket006")
pocket7.Profile = sketch21
pocket7.Type = "UpToFirst"
pocket7.Reversed = True

doc.recompute()
